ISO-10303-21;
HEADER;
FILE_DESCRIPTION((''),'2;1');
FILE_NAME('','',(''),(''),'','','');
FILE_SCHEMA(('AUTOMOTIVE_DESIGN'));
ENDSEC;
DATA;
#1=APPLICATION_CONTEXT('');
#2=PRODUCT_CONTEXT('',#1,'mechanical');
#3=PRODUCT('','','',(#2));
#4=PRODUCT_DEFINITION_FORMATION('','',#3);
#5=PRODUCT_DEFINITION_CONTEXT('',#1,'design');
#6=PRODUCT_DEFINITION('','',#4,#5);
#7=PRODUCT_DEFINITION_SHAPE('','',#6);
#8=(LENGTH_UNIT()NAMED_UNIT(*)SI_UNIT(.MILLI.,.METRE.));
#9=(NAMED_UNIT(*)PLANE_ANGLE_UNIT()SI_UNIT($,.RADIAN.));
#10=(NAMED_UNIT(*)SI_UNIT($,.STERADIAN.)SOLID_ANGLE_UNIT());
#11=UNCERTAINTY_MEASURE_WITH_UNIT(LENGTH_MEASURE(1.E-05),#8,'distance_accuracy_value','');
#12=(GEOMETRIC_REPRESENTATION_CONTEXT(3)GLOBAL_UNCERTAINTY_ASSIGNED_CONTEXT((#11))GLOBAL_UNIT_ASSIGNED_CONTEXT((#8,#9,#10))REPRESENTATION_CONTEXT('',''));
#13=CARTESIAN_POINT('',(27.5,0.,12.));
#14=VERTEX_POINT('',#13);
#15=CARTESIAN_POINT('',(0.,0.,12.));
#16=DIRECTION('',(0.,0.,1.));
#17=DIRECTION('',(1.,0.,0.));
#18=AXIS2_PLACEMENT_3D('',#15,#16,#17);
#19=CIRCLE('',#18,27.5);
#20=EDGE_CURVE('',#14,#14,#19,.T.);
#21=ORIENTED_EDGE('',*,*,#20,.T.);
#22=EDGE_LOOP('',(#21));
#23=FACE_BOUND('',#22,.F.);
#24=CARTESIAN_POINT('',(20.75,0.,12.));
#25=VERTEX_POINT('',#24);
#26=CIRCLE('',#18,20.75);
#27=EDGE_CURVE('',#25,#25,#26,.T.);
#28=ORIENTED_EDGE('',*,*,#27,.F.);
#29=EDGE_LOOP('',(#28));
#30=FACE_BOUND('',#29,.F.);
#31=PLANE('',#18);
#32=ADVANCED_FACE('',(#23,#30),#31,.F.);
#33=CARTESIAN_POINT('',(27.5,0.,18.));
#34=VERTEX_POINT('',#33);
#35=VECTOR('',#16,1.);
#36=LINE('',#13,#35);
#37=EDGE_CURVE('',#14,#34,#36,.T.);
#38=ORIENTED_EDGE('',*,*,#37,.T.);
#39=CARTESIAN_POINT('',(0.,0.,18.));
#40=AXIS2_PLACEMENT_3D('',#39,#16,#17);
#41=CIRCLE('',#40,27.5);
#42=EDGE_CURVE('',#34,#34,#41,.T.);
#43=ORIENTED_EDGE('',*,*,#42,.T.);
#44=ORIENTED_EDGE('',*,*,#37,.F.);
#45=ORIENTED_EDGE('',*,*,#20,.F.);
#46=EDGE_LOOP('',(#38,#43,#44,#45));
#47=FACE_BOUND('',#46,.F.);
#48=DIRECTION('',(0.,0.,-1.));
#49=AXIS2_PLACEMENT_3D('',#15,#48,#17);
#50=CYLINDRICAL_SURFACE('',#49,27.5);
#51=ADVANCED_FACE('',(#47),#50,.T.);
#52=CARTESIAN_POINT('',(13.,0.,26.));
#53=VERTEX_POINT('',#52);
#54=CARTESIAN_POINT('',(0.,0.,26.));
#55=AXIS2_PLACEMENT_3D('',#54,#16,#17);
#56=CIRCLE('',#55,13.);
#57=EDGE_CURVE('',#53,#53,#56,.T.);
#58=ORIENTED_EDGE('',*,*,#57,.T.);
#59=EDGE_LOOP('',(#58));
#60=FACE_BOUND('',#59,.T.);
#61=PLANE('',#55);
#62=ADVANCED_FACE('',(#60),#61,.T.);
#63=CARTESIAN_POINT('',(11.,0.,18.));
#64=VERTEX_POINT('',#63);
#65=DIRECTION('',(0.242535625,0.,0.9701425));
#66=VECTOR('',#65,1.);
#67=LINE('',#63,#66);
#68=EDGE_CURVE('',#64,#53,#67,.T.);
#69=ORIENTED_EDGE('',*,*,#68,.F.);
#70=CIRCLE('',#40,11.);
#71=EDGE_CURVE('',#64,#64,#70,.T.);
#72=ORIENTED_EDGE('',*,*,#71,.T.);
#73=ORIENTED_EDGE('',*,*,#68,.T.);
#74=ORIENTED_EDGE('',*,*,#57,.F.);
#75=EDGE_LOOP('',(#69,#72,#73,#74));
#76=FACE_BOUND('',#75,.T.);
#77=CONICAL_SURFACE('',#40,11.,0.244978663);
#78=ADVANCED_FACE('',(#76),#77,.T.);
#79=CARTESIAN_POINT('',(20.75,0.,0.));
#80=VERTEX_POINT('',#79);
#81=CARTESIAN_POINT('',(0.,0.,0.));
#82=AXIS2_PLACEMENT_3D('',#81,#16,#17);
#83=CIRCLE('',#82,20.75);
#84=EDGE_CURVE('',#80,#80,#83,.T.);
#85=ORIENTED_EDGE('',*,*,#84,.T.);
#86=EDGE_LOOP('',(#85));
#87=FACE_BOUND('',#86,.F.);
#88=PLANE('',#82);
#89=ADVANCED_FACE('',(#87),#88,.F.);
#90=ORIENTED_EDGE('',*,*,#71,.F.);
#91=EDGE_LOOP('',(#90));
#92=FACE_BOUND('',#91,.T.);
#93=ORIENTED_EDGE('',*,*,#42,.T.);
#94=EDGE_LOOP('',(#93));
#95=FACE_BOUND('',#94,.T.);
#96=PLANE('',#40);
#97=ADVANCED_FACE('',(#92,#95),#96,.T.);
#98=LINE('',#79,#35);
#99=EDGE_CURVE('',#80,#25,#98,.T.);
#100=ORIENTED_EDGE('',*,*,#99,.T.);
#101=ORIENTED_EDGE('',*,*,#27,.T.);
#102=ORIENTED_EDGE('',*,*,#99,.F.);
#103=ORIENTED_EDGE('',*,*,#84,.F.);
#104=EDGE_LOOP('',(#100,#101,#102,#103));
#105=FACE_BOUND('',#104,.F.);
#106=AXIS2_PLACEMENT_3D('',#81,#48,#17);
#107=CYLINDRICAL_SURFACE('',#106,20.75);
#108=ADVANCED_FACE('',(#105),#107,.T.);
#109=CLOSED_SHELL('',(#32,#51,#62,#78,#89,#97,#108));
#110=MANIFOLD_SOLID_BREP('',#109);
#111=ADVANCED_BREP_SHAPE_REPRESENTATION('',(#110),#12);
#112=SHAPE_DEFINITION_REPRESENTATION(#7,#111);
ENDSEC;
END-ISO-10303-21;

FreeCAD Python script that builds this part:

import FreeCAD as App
import Part
import Sketcher
from FreeCAD import Vector
Q = App.Units.Quantity

doc = App.newDocument("Part")
body = doc.addObject("PartDesign::Body", "Body")

# Sketch on XY plane
sketch1 = doc.addObject("Sketcher::SketchObject", "Sketch")
body.addObject(sketch1)
sketch1.AttachmentSupport = (doc.XY_Plane, [""])
sketch1.MapMode = "FlatFace"
sketch1.AttachmentOffset = App.Placement(Vector(0, 0, 12), App.Rotation())
sketch1.addGeometry(Part.Circle(Vector(0, 0, 0), Vector(0, 0, 1), 28), False)
sketch1.addConstraint([
    Sketcher.Constraint("Coincident", 0, 3, -1, 1),
    Sketcher.Constraint("Diameter", 0, Q("55 mm")),
])
pad1 = doc.addObject("PartDesign::Pad", "Pad")
body.addObject(pad1)
pad1.Profile = sketch1
pad1.Length = 6
body2 = doc.addObject("PartDesign::Body", "Body001")

# Sketch on XZ plane
sketch2 = doc.addObject("Sketcher::SketchObject", "Sketch001")
body2.addObject(sketch2)
sketch2.AttachmentSupport = (doc.getObject("XZ_Plane001"), [""])
sketch2.MapMode = "FlatFace"
sketch2.addGeometry([
    Part.LineSegment(Vector(0, 18, 0), Vector(11, 18, 0)),
    Part.LineSegment(Vector(11, 18, 0), Vector(13, 26, 0)),
    Part.LineSegment(Vector(13, 26, 0), Vector(0, 26, 0)),
    Part.LineSegment(Vector(0, 26, 0), Vector(0, 18, 0)),
], False)
sketch2.addConstraint([
    Sketcher.Constraint("Coincident", 0, 2, 1, 1),
    Sketcher.Constraint("Coincident", 1, 2, 2, 1),
    Sketcher.Constraint("Coincident", 2, 2, 3, 1),
    Sketcher.Constraint("Coincident", 3, 2, 0, 1),
    Sketcher.Constraint("Horizontal", 0),
    Sketcher.Constraint("Horizontal", 2),
    Sketcher.Constraint("Vertical", 3),
    Sketcher.Constraint("PointOnObject", 2, 2, -2),
    Sketcher.Constraint("DistanceX", 0, 1, 0, 2, Q("11 mm")),
    Sketcher.Constraint("DistanceX", 2, 2, 2, 1, Q("13 mm")),
    Sketcher.Constraint("DistanceY", 3, 2, 3, 1, Q("8 mm")),
    Sketcher.Constraint("DistanceY", -1, 1, 0, 2, Q("18 mm")),
])
revolution = doc.addObject("PartDesign::Revolution", "Revolution")
body2.addObject(revolution)
revolution.Profile = sketch2
revolution.ReferenceAxis = (sketch2, ["V_Axis"])
revolution.Angle = 360
body3 = doc.addObject("PartDesign::Body", "Body002")

# Sketch on XY plane
sketch3 = doc.addObject("Sketcher::SketchObject", "Sketch002")
body3.addObject(sketch3)
sketch3.AttachmentSupport = (doc.getObject("XY_Plane002"), [""])
sketch3.MapMode = "FlatFace"
sketch3.addGeometry(Part.Circle(Vector(0, 0, 0), Vector(0, 0, 1), 21), False)
sketch3.addConstraint([
    Sketcher.Constraint("Coincident", 0, 3, -1, 1),
    Sketcher.Constraint("Diameter", 0, Q("41.5 mm")),
])
pad2 = doc.addObject("PartDesign::Pad", "Pad001")
body3.addObject(pad2)
pad2.Profile = sketch3
pad2.Length = 12
doc.recompute()

boolean = doc.addObject("PartDesign::Boolean", "Boolean")
body3.addObject(boolean)
boolean.Type = "Fuse"
boolean.addObjects([body])
doc.recompute()

boolean2 = doc.addObject("PartDesign::Boolean", "Boolean001")
body3.addObject(boolean2)
boolean2.Type = "Fuse"
boolean2.addObjects([body2])

doc.recompute()
